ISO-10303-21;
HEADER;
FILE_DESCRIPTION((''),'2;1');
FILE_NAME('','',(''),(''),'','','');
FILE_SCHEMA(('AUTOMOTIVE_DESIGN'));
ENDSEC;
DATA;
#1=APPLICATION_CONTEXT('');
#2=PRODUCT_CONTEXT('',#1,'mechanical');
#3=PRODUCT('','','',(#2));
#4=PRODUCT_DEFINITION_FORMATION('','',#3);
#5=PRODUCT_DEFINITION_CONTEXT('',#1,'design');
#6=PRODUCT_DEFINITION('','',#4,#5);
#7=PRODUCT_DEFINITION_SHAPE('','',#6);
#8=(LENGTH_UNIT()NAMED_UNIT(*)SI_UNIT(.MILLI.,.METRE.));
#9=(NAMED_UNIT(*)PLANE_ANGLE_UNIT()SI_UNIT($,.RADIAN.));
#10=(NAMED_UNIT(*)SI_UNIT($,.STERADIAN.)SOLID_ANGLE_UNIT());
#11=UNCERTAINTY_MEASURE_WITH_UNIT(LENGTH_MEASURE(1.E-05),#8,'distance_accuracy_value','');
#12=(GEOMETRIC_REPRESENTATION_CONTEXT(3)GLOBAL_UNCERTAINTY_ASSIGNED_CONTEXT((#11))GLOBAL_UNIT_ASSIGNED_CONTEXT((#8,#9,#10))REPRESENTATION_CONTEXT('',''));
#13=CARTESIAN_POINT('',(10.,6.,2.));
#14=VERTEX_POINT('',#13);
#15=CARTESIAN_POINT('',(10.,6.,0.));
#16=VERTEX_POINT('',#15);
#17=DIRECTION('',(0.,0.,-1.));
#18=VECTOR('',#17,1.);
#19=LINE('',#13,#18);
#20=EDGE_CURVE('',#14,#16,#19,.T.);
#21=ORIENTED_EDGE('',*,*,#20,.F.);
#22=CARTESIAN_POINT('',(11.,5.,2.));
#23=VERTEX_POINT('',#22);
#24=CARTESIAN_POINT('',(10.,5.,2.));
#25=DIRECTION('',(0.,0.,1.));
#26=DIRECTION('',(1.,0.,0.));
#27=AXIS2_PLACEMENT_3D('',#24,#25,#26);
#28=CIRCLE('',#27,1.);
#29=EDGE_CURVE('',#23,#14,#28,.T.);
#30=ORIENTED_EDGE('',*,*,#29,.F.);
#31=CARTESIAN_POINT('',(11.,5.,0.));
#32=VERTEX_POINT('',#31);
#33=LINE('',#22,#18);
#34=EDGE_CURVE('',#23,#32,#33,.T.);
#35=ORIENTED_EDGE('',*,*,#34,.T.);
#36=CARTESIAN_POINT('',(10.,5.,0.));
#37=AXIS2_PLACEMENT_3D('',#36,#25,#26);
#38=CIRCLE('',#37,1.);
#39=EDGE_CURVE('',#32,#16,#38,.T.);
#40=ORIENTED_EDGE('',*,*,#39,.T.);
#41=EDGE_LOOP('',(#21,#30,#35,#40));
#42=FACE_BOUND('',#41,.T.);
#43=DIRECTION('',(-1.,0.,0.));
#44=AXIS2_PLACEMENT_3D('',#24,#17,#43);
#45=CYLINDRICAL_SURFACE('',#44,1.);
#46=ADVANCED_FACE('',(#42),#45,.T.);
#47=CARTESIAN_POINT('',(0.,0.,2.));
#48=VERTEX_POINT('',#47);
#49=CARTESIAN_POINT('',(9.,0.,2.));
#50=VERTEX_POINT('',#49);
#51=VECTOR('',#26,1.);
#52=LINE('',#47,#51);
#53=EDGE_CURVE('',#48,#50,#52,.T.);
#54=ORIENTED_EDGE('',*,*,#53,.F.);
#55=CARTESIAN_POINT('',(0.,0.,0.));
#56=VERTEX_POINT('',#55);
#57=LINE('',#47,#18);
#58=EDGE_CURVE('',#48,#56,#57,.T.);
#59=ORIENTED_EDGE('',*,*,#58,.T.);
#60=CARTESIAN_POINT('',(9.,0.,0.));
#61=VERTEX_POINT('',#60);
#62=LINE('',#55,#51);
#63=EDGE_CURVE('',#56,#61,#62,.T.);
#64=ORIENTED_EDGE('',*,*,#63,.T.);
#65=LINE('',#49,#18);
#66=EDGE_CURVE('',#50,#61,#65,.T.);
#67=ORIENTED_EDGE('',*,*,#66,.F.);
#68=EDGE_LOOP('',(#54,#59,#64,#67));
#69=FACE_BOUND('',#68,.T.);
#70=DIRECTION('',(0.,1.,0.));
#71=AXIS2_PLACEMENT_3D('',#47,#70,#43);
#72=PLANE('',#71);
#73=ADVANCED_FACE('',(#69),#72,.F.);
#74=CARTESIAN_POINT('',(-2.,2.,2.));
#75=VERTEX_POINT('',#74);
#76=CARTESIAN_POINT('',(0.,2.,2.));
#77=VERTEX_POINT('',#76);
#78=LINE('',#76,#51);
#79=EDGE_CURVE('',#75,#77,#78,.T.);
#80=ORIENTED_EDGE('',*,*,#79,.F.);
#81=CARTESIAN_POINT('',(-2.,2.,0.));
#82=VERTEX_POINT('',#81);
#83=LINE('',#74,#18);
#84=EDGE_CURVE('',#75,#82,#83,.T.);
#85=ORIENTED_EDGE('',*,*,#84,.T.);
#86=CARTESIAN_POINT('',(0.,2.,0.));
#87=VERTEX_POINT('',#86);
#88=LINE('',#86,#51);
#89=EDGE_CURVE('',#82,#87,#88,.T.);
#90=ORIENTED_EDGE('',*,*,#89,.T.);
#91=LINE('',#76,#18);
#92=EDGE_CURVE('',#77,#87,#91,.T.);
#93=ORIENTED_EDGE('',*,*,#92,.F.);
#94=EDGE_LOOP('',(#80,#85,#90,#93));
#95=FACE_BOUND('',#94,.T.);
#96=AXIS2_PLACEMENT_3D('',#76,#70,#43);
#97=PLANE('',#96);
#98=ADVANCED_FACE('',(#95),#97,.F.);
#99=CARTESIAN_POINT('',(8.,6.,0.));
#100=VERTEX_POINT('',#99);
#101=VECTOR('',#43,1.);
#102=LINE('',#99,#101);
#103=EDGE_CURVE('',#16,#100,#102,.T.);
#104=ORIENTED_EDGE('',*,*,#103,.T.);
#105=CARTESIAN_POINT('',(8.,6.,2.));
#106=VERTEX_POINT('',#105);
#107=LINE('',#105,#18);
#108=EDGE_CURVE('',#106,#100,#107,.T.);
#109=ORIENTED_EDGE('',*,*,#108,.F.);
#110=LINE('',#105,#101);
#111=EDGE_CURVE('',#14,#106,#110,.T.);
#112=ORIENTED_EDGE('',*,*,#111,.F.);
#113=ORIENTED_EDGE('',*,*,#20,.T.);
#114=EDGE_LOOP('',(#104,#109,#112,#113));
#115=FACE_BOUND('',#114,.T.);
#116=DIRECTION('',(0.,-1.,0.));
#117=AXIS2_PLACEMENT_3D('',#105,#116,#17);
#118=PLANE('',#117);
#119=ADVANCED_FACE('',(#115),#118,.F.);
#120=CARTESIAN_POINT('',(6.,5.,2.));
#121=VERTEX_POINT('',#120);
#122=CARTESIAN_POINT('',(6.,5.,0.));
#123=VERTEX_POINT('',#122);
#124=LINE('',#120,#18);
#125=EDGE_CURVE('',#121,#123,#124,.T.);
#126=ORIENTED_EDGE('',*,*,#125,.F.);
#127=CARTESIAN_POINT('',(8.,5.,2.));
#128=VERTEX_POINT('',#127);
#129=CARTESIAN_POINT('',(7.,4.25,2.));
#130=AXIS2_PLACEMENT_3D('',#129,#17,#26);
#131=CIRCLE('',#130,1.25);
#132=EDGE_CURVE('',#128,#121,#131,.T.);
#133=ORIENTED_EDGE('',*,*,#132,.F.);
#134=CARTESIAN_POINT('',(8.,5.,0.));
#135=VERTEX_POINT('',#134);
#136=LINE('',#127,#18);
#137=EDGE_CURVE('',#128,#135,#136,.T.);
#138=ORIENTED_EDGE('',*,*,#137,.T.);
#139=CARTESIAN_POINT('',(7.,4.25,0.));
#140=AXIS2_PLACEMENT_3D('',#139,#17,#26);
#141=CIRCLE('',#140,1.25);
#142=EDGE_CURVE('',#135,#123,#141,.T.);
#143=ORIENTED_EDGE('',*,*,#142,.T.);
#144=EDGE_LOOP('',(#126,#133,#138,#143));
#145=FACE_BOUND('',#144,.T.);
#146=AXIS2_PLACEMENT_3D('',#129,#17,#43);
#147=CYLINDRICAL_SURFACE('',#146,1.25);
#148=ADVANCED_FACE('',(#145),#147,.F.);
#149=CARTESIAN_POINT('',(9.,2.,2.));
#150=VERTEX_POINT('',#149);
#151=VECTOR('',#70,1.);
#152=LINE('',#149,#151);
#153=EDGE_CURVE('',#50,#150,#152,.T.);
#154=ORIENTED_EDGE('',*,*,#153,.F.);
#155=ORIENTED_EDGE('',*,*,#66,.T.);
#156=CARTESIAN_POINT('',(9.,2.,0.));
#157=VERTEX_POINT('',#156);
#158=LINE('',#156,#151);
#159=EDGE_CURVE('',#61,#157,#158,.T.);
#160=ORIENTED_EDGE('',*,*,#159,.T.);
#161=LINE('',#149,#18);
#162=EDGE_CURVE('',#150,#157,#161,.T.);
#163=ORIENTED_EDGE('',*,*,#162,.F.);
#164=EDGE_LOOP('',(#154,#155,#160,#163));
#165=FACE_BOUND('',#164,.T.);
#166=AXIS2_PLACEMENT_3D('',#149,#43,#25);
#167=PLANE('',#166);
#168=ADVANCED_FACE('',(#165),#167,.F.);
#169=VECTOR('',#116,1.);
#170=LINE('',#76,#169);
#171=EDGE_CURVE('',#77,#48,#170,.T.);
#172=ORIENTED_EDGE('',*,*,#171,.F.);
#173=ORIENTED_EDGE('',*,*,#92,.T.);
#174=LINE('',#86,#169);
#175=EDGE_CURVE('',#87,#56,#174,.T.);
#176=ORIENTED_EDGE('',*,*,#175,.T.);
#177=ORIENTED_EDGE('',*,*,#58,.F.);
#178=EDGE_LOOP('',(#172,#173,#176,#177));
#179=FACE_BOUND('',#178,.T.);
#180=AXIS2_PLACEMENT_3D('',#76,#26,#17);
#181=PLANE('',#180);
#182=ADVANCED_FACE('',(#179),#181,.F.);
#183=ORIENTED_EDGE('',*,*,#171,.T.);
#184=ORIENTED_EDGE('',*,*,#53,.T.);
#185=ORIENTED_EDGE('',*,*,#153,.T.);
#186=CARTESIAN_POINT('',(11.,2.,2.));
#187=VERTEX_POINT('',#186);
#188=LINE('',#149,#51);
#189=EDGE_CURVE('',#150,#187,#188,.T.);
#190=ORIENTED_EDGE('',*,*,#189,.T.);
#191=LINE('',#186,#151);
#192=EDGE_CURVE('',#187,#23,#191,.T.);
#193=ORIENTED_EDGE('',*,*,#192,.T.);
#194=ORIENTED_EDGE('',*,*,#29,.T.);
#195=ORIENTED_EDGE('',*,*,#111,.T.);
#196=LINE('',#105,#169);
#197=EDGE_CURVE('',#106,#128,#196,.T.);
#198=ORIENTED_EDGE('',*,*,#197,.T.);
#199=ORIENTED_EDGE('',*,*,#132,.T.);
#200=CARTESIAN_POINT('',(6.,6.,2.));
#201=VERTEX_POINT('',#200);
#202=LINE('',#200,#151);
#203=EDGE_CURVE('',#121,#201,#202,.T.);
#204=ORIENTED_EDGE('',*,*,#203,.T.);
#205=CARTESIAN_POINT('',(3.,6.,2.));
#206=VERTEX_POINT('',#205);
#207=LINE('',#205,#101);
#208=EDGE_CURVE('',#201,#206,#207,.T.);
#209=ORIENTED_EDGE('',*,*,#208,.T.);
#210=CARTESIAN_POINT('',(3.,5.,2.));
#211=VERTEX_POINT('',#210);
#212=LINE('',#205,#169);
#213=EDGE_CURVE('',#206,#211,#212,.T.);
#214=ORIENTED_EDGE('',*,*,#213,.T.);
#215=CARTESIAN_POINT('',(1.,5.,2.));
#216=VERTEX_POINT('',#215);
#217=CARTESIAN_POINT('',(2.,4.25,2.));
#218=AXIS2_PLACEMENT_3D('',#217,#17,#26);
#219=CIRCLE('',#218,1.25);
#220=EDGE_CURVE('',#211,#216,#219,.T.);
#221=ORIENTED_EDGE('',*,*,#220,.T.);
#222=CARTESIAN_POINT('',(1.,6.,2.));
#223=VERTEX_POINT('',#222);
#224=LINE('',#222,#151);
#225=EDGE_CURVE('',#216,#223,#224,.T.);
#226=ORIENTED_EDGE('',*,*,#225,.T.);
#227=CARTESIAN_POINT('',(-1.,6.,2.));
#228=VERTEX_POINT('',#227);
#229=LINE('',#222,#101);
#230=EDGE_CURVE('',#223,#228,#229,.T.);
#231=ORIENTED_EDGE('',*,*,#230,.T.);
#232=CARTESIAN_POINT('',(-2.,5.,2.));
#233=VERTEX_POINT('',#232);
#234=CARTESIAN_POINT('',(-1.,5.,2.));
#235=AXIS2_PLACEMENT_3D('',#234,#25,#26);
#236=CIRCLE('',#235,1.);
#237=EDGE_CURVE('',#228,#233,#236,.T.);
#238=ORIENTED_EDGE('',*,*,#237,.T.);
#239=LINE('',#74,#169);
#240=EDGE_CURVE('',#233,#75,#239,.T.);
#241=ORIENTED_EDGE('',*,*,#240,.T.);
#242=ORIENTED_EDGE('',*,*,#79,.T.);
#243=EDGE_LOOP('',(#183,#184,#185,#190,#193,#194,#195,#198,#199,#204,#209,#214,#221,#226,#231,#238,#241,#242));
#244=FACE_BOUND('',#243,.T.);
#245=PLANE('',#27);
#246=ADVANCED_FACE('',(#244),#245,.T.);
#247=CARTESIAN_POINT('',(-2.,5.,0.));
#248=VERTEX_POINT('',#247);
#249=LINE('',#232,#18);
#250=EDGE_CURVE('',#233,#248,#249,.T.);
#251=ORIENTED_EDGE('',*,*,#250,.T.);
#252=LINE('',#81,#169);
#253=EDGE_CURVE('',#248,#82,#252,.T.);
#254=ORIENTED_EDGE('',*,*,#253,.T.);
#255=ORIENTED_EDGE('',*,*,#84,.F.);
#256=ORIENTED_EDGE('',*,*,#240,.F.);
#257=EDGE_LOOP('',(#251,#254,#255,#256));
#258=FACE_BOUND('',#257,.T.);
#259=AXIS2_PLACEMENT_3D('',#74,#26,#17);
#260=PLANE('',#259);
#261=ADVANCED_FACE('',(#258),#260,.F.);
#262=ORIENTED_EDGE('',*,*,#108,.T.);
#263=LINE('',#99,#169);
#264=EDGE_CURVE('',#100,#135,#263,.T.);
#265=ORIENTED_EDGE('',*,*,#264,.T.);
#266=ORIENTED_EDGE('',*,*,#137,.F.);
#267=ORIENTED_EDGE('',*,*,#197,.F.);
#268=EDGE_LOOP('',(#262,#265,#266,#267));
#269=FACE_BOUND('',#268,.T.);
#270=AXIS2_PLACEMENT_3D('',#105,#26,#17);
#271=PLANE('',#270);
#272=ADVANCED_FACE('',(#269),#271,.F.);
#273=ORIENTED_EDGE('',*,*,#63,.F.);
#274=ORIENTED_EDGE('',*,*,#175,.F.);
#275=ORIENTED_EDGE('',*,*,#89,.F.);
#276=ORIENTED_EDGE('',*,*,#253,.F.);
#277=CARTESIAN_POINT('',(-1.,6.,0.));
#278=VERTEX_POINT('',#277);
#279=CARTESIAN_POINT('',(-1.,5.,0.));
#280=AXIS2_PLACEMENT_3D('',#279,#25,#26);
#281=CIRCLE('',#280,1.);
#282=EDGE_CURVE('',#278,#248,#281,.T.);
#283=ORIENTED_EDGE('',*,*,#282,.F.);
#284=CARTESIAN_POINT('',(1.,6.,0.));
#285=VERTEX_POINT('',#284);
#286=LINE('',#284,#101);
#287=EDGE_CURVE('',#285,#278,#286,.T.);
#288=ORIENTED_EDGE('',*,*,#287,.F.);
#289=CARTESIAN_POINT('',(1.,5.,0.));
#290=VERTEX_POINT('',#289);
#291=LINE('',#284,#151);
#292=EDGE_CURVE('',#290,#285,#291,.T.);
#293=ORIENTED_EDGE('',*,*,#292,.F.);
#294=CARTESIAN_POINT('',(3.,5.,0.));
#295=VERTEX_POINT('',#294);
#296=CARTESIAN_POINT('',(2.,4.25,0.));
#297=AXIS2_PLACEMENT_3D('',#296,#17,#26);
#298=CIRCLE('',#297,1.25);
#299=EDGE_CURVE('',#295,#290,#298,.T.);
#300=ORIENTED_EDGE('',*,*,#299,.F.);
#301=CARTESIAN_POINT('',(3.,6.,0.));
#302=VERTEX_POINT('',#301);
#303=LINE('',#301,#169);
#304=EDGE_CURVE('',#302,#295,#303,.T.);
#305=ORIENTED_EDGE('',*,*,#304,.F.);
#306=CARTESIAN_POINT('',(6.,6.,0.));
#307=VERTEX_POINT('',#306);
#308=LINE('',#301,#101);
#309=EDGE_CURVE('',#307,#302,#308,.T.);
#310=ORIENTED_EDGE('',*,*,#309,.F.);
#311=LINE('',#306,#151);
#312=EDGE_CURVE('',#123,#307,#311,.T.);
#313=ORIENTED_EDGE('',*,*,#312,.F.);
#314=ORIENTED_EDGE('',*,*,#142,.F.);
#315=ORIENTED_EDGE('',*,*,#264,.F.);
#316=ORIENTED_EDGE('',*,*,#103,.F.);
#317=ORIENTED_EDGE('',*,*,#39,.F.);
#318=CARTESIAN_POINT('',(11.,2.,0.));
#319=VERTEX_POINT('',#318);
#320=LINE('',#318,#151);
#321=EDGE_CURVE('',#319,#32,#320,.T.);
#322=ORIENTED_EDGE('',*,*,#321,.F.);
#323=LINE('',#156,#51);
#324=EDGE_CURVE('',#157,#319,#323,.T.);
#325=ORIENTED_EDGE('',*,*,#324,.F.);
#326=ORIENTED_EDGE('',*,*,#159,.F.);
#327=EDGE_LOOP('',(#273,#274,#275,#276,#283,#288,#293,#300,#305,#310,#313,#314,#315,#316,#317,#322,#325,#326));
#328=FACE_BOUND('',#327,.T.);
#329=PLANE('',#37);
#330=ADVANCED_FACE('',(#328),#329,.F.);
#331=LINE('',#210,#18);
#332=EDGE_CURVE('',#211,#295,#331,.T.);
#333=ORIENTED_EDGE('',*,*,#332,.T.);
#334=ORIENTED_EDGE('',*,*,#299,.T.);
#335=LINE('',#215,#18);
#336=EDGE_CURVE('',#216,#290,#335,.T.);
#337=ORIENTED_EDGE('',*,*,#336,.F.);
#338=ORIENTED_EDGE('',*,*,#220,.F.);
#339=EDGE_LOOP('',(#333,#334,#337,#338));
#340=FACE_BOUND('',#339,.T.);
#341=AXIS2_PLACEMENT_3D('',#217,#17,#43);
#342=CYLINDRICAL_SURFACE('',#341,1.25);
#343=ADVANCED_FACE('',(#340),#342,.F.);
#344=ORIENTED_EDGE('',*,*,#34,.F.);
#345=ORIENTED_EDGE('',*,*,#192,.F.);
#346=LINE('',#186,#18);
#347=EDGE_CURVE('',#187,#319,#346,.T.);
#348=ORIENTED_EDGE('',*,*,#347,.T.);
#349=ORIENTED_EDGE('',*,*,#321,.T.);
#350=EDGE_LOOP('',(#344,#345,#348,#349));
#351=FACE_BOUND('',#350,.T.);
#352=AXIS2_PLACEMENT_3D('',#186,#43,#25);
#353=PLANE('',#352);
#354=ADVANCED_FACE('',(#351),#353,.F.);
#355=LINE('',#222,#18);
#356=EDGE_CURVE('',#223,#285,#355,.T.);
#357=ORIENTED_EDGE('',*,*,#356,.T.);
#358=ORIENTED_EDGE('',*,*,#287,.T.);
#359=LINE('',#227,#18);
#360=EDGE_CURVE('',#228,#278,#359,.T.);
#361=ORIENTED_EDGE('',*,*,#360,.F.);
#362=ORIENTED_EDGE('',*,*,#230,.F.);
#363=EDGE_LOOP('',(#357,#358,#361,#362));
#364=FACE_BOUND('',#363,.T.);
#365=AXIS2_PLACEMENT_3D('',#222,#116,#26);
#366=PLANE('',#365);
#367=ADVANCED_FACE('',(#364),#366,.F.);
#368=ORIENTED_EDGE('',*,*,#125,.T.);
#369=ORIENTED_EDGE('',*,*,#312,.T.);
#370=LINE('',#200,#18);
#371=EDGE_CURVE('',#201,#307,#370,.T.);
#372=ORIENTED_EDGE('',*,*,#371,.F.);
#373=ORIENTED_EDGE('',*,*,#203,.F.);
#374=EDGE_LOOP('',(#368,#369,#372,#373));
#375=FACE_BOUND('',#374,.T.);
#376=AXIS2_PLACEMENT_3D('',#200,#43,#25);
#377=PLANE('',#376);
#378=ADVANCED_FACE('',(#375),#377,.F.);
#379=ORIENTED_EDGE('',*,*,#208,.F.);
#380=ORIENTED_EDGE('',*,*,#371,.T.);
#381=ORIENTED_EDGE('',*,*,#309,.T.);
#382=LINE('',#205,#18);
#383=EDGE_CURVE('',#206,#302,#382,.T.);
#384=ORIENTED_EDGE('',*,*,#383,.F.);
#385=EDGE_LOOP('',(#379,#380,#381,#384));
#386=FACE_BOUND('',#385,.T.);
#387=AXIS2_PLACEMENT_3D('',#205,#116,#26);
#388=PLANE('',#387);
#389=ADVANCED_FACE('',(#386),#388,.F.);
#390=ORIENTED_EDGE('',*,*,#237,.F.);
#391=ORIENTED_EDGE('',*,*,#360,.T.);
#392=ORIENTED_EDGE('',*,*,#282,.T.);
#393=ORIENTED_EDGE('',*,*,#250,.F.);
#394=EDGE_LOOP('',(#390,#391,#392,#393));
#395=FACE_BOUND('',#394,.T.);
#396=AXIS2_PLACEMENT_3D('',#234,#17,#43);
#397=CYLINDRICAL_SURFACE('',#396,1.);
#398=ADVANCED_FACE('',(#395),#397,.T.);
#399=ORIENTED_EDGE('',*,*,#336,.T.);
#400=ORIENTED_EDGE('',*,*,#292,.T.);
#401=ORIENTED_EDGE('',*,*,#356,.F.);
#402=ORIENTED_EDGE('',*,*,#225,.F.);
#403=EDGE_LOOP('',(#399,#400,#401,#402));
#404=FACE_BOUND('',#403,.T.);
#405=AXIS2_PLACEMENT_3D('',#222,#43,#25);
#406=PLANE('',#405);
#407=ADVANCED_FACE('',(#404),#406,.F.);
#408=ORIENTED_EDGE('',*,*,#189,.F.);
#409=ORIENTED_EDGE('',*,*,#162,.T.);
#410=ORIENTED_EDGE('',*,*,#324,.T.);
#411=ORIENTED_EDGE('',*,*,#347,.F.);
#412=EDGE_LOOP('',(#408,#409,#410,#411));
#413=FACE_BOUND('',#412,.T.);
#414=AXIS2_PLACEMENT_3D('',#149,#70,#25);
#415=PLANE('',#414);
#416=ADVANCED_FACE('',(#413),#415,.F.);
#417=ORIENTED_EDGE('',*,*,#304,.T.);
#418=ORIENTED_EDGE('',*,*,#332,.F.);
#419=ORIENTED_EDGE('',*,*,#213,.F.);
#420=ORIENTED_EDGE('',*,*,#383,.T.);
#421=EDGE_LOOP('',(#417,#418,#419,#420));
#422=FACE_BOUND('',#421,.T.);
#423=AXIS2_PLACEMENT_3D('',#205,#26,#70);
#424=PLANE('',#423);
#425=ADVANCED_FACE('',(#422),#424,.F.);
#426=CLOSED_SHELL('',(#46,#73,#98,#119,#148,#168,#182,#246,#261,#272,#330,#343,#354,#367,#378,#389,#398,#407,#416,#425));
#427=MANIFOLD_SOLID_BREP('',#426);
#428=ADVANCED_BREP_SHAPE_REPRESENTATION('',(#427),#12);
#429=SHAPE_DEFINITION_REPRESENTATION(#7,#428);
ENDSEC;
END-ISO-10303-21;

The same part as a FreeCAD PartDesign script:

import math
import FreeCAD as App
import Part
import Sketcher

doc = App.newDocument("Part")
body = doc.addObject("PartDesign::Body", "Body")

sketch1 = body.newObject("Sketcher::SketchObject", "Sketch")
sketch1.AttachmentSupport = (doc.getObject("XY_Plane"), [""])
sketch1.MapMode = "FlatFace"
sketch1.addGeometry([
    Part.LineSegment(App.Vector(11, 2, 0), App.Vector(11, 5, 0)),
    Part.ArcOfCircle(Part.Circle(App.Vector(10, 5, 0), App.Vector(0, 0, 1), 1), math.radians(0), math.radians(90)),
    Part.LineSegment(App.Vector(10, 6, 0), App.Vector(8, 6, 0)),
    Part.LineSegment(App.Vector(8, 6, 0), App.Vector(8, 5, 0)),
    Part.ArcOfCircle(Part.Circle(App.Vector(7, 4.25, 0), App.Vector(0, 0, 1), 1.25), math.radians(143.130102), math.radians(396.869898)),
    Part.LineSegment(App.Vector(6, 5, 0), App.Vector(6, 6, 0)),
    Part.LineSegment(App.Vector(6, 6, 0), App.Vector(3, 6, 0)),
    Part.LineSegment(App.Vector(3, 6, 0), App.Vector(3, 5, 0)),
    Part.ArcOfCircle(Part.Circle(App.Vector(2, 4.25, 0), App.Vector(0, 0, 1), 1.25), math.radians(143.130102), math.radians(396.869898)),
    Part.LineSegment(App.Vector(1, 5, 0), App.Vector(1, 6, 0)),
    Part.LineSegment(App.Vector(1, 6, 0), App.Vector(-1, 6, 0)),
    Part.ArcOfCircle(Part.Circle(App.Vector(-1, 5, 0), App.Vector(0, 0, 1), 1), math.radians(90), math.radians(180)),
    Part.LineSegment(App.Vector(-2, 5, 0), App.Vector(-2, 2, 0)),
    Part.LineSegment(App.Vector(-2, 2, 0), App.Vector(0, 2, 0)),
    Part.LineSegment(App.Vector(0, 2, 0), App.Vector(0, 0, 0)),
    Part.LineSegment(App.Vector(0, 0, 0), App.Vector(9, 0, 0)),
    Part.LineSegment(App.Vector(9, 0, 0), App.Vector(9, 2, 0)),
    Part.LineSegment(App.Vector(9, 2, 0), App.Vector(11, 2, 0)),
], False)
sketch1.addConstraint([
    Sketcher.Constraint("Tangent", 0, 2, 1, 1),
    Sketcher.Constraint("Tangent", 1, 2, 2, 1),
    Sketcher.Constraint("Coincident", 2, 2, 3, 1),
    Sketcher.Constraint("Coincident", 3, 2, 4, 2),
    Sketcher.Constraint("Coincident", 4, 1, 5, 1),
    Sketcher.Constraint("Coincident", 5, 2, 6, 1),
    Sketcher.Constraint("Coincident", 6, 2, 7, 1),
    Sketcher.Constraint("Coincident", 7, 2, 8, 2),
    Sketcher.Constraint("Coincident", 8, 1, 9, 1),
    Sketcher.Constraint("Coincident", 9, 2, 10, 1),
    Sketcher.Constraint("Tangent", 10, 2, 11, 1),
    Sketcher.Constraint("Tangent", 11, 2, 12, 1),
    Sketcher.Constraint("Coincident", 12, 2, 13, 1),
    Sketcher.Constraint("Coincident", 13, 2, 14, 1),
    Sketcher.Constraint("Coincident", 14, 2, 15, 1),
    Sketcher.Constraint("Coincident", 15, 2, 16, 1),
    Sketcher.Constraint("Coincident", 16, 2, 17, 1),
    Sketcher.Constraint("Coincident", 17, 2, 0, 1),
    Sketcher.Constraint("Vertical", 0),
    Sketcher.Constraint("Horizontal", 2),
    Sketcher.Constraint("Vertical", 3),
    Sketcher.Constraint("Vertical", 5),
    Sketcher.Constraint("Horizontal", 6),
    Sketcher.Constraint("Vertical", 7),
    Sketcher.Constraint("Vertical", 9),
    Sketcher.Constraint("Horizontal", 10),
    Sketcher.Constraint("Vertical", 12),
    Sketcher.Constraint("Horizontal", 13),
    Sketcher.Constraint("Vertical", 14),
    Sketcher.Constraint("Horizontal", 15),
    Sketcher.Constraint("Vertical", 16),
    Sketcher.Constraint("Horizontal", 17),
    Sketcher.Constraint("Coincident", 14, 2, -1, 1),
    Sketcher.Constraint("Equal", 4, 8),
    Sketcher.Constraint("Equal", 1, 11),
    Sketcher.Constraint("Horizontal", 4, 3, 8, 3),
    Sketcher.Constraint("Horizontal", 1, 3, 11, 3),
    Sketcher.Constraint("Horizontal", 0, 2, 3, 2),
    Sketcher.Constraint("Horizontal", 3, 2, 4, 1),
    Sketcher.Constraint("Horizontal", 2, 2, 5, 2),
    Sketcher.Constraint("Horizontal", 4, 1, 7, 2),
    Sketcher.Constraint("Horizontal", 7, 2, 8, 1),
    Sketcher.Constraint("Horizontal", 13, 2, 16, 2),
    Sketcher.Constraint("Equal", 2, 10),
    Sketcher.Constraint("Equal", 10, 13),
    Sketcher.Constraint("Equal", 13, 17),
    Sketcher.Constraint("Equal", 6, 0),
    Sketcher.Constraint("Equal", 17, 14),
    Sketcher.Constraint("Radius", 1, 1.0),
    Sketcher.Constraint("DistanceX", 2, 2, 2, 1, 2.0),
    Sketcher.Constraint("DistanceX", 6, 2, 6, 1, 3.0),
    Sketcher.Constraint("DistanceX", 15, 1, 15, 2, 9.0),
    Sketcher.Constraint("Radius", 4, 1.25),
])
pad1 = body.newObject("PartDesign::Pad", "Pad")
pad1.Profile = sketch1
pad1.Length = 2

doc.recompute()
